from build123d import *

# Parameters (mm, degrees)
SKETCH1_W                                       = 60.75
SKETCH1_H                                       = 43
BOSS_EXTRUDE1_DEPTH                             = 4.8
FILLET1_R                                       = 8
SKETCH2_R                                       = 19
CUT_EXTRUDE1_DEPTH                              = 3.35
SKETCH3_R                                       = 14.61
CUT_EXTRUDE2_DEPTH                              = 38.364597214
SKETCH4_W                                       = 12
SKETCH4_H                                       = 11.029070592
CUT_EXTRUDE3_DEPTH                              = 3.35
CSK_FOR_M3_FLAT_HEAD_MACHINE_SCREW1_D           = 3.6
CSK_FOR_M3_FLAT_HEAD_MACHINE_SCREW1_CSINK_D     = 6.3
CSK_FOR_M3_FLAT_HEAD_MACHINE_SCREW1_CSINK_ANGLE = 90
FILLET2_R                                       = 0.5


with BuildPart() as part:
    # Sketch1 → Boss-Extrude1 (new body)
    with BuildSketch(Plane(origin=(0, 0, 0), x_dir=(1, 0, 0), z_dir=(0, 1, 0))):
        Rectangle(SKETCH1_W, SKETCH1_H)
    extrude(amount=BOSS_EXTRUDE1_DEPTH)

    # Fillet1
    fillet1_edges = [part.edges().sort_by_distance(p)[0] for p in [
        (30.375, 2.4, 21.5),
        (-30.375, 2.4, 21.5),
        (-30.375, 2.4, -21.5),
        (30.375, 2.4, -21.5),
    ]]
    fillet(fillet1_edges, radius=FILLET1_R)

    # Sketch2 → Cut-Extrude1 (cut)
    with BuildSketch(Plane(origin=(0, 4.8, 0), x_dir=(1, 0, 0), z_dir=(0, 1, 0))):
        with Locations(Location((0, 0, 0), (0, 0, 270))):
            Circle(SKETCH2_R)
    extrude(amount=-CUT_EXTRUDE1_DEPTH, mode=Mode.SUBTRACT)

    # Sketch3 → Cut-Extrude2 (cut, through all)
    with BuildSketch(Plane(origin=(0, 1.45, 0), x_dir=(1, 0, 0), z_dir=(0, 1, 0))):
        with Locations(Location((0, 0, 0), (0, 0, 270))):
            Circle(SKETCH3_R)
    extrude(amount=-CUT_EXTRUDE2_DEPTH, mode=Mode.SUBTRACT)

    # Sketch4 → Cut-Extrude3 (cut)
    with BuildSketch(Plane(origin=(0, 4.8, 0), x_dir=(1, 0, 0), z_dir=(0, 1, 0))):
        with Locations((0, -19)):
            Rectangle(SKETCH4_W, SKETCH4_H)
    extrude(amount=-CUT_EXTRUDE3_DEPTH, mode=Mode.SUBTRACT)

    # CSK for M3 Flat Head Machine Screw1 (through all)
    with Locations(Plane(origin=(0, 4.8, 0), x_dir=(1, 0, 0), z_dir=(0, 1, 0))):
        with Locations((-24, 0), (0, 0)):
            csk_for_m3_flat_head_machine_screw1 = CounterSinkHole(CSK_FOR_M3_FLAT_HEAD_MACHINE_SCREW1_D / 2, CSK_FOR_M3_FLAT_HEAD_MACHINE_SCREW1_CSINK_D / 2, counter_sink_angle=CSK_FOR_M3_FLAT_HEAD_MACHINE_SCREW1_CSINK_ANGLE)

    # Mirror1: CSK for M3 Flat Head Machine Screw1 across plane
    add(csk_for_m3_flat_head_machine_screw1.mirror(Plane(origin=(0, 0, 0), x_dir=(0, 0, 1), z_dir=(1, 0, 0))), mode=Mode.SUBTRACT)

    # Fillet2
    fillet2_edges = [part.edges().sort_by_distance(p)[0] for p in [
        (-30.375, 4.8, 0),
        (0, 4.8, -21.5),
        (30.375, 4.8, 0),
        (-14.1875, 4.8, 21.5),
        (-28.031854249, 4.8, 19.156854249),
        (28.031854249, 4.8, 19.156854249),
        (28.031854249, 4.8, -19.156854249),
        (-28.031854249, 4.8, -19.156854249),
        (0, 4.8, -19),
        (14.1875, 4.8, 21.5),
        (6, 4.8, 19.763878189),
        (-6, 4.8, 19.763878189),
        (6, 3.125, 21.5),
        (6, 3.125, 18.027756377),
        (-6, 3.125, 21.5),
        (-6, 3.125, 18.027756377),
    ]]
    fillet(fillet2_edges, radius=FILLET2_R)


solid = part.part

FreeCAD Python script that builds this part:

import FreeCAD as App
import Part
import Sketcher
from FreeCAD import Vector


def edges_at(feature, points):
    """Names of the edges that pass closest to the given points."""
    edges = feature.Shape.Edges
    near = lambda p: min(range(len(edges)), key=lambda i: edges[i].distToShape(Part.Vertex(*p))[0])
    return sorted({f"Edge{near(p) + 1}" for p in points})

doc = App.newDocument("Part")
body = doc.addObject("PartDesign::Body", "Body")

# Sketch on XZ plane
sketch1 = body.newObject("Sketcher::SketchObject", "Sketch")
sketch1.AttachmentSupport = (doc.getObject("XZ_Plane"), [""])
sketch1.MapMode = "FlatFace"
sketch1.addGeometry(Part.LineSegment(Vector(-30, -22, 0), Vector(-30, 22, 0)), False)
sketch1.addGeometry(Part.LineSegment(Vector(-30, 22, 0), Vector(30, 22, 0)), False)
sketch1.addGeometry(Part.LineSegment(Vector(30, 22, 0), Vector(30, -22, 0)), False)
sketch1.addGeometry(Part.LineSegment(Vector(30, -22, 0), Vector(-30, -22, 0)), False)
sketch1.addConstraint(Sketcher.Constraint("Coincident", 0, 2, 1, 1))
sketch1.addConstraint(Sketcher.Constraint("Coincident", 1, 2, 2, 1))
sketch1.addConstraint(Sketcher.Constraint("Coincident", 2, 2, 3, 1))
sketch1.addConstraint(Sketcher.Constraint("Coincident", 3, 2, 0, 1))
sketch1.addConstraint(Sketcher.Constraint("Vertical", 0))
sketch1.addConstraint(Sketcher.Constraint("Horizontal", 1))
sketch1.addConstraint(Sketcher.Constraint("Vertical", 2))
sketch1.addConstraint(Sketcher.Constraint("Horizontal", 3))
sketch1.addConstraint(Sketcher.Constraint("Symmetric", 0, 2, 2, 2, -1, 1))
sketch1.addConstraint(Sketcher.Constraint("DistanceY", 0, 1, 0, 2, 43.0))
sketch1.addConstraint(Sketcher.Constraint("DistanceX", 1, 1, 1, 2, 60.75))
pad1 = body.newObject("PartDesign::Pad", "Pad")
pad1.Profile = sketch1
pad1.Length = 4.8
pad1.Reversed = True
doc.recompute()

fillet = body.newObject("PartDesign::Fillet", "Fillet")
fillet.Base = (pad1, edges_at(pad1, [
    (30.375, 2.4, 21.5),
    (-30.375, 2.4, 21.5),
    (-30.375, 2.4, -21.5),
    (30.375, 2.4, -21.5),
]))
fillet.Radius = 8

# Sketch on XZ plane
sketch2 = body.newObject("Sketcher::SketchObject", "Sketch001")
sketch2.AttachmentSupport = (doc.getObject("XZ_Plane"), [""])
sketch2.MapMode = "FlatFace"
sketch2.AttachmentOffset = App.Placement(Vector(0, 0, -4.8), App.Rotation())
sketch2.addGeometry(Part.Circle(Vector(0, 0, 0), Vector(0, 0, 1), 19), False)
sketch2.addConstraint(Sketcher.Constraint("Coincident", 0, 3, -1, 1))
sketch2.addConstraint(Sketcher.Constraint("Diameter", 0, 38.0))
pocket1 = body.newObject("PartDesign::Pocket", "Pocket")
pocket1.Profile = sketch2
pocket1.Length = 3.35
pocket1.Reversed = True

# Sketch on XZ plane
sketch3 = body.newObject("Sketcher::SketchObject", "Sketch002")
sketch3.AttachmentSupport = (doc.getObject("XZ_Plane"), [""])
sketch3.MapMode = "FlatFace"
sketch3.AttachmentOffset = App.Placement(Vector(0, 0, -1.45), App.Rotation())
sketch3.addGeometry(Part.Circle(Vector(0, 0, 0), Vector(0, 0, 1), 15), False)
sketch3.addConstraint(Sketcher.Constraint("Coincident", 0, 3, -1, 1))
sketch3.addConstraint(Sketcher.Constraint("Diameter", 0, 29.22))
pocket2 = body.newObject("PartDesign::Pocket", "Pocket001")
pocket2.Profile = sketch3
pocket2.Type = "ThroughAll"
pocket2.Reversed = True

# Sketch on XZ plane
sketch4 = body.newObject("Sketcher::SketchObject", "Sketch003")
sketch4.AttachmentSupport = (doc.getObject("XZ_Plane"), [""])
sketch4.MapMode = "FlatFace"
sketch4.AttachmentOffset = App.Placement(Vector(0, 0, -4.8), App.Rotation())
sketch4.addGeometry(Part.LineSegment(Vector(-6, 13, 0), Vector(-6, 25, 0)), False)
sketch4.addGeometry(Part.LineSegment(Vector(-6, 25, 0), Vector(6, 25, 0)), False)
sketch4.addGeometry(Part.LineSegment(Vector(6, 25, 0), Vector(6, 13, 0)), False)
sketch4.addGeometry(Part.LineSegment(Vector(6, 13, 0), Vector(-6, 13, 0)), False)
sketch4.addConstraint(Sketcher.Constraint("Coincident", 0, 2, 1, 1))
sketch4.addConstraint(Sketcher.Constraint("Coincident", 1, 2, 2, 1))
sketch4.addConstraint(Sketcher.Constraint("Coincident", 2, 2, 3, 1))
sketch4.addConstraint(Sketcher.Constraint("Coincident", 3, 2, 0, 1))
sketch4.addConstraint(Sketcher.Constraint("Vertical", 0))
sketch4.addConstraint(Sketcher.Constraint("Horizontal", 1))
sketch4.addConstraint(Sketcher.Constraint("Vertical", 2))
sketch4.addConstraint(Sketcher.Constraint("Horizontal", 3))
sketch4.addConstraint(Sketcher.Constraint("DistanceX", 1, 1, 1, 2, 12.0))
sketch4.addConstraint(Sketcher.Constraint("DistanceX", 0, 2, -1, 1, 6.0))
sketch4.addConstraint(Sketcher.Constraint("DistanceY", 0, 1, 0, 2, 11.029071))
sketch4.addConstraint(Sketcher.Constraint("DistanceY", -1, 1, 0, 2, 24.514535))
pocket3 = body.newObject("PartDesign::Pocket", "Pocket002")
pocket3.Profile = sketch4
pocket3.Length = 3.35
pocket3.Reversed = True

# Sketch on XZ plane
sketch5 = body.newObject("Sketcher::SketchObject", "Sketch004")
sketch5.AttachmentSupport = (doc.getObject("XZ_Plane"), [""])
sketch5.MapMode = "FlatFace"
sketch5.AttachmentOffset = App.Placement(Vector(0, 0, -4.8), App.Rotation())
sketch5.addGeometry(Part.Circle(Vector(-24, 0, 0), Vector(0, 0, 1), 1.8), False)
sketch5.addGeometry(Part.Circle(Vector(0, 0, 0), Vector(0, 0, 1), 1.8), False)
sketch5.addConstraint(Sketcher.Constraint("Coincident", 1, 3, -1, 1))
sketch5.addConstraint(Sketcher.Constraint("Equal", 0, 1))
sketch5.addConstraint(Sketcher.Constraint("PointOnObject", 0, 3, -1))
sketch5.addConstraint(Sketcher.Constraint("Diameter", 0, 3.6))
sketch5.addConstraint(Sketcher.Constraint("DistanceX", 0, 3, -1, 1, 24.0))
doc.recompute()
hole = body.newObject("PartDesign::Hole", "Hole")
hole.Profile = sketch5
hole.ThreadType = "None"
hole.Diameter = 3.6
hole.DepthType = "ThroughAll"
hole.HoleCutType = "Countersink"
hole.HoleCutDiameter = 6.3
hole.HoleCutCountersinkAngle = 90
hole.Reversed = True
doc.recompute()

mirrored = body.newObject("PartDesign::Mirrored", "Mirrored")
mirrored.Originals = [hole]
mirrored.MirrorPlane = (doc.getObject("YZ_Plane"), [""])
body.Tip = mirrored
doc.recompute()

fillet2 = body.newObject("PartDesign::Fillet", "Fillet001")
fillet2.Base = (mirrored, edges_at(mirrored, [
    (-30.375, 4.8, 0),
    (0, 4.8, -21.5),
    (30.375, 4.8, 0),
    (-14.188, 4.8, 21.5),
    (-28.032, 4.8, 19.157),
    (28.032, 4.8, 19.157),
    (28.032, 4.8, -19.157),
    (-28.032, 4.8, -19.157),
    (0, 4.8, -19),
    (14.188, 4.8, 21.5),
    (6, 4.8, 19.764),
    (-6, 4.8, 19.764),
    (6, 3.125, 21.5),
    (6, 3.125, 18.028),
    (-6, 3.125, 21.5),
    (-6, 3.125, 18.028),
]))
fillet2.Radius = 0.5

doc.recompute()
